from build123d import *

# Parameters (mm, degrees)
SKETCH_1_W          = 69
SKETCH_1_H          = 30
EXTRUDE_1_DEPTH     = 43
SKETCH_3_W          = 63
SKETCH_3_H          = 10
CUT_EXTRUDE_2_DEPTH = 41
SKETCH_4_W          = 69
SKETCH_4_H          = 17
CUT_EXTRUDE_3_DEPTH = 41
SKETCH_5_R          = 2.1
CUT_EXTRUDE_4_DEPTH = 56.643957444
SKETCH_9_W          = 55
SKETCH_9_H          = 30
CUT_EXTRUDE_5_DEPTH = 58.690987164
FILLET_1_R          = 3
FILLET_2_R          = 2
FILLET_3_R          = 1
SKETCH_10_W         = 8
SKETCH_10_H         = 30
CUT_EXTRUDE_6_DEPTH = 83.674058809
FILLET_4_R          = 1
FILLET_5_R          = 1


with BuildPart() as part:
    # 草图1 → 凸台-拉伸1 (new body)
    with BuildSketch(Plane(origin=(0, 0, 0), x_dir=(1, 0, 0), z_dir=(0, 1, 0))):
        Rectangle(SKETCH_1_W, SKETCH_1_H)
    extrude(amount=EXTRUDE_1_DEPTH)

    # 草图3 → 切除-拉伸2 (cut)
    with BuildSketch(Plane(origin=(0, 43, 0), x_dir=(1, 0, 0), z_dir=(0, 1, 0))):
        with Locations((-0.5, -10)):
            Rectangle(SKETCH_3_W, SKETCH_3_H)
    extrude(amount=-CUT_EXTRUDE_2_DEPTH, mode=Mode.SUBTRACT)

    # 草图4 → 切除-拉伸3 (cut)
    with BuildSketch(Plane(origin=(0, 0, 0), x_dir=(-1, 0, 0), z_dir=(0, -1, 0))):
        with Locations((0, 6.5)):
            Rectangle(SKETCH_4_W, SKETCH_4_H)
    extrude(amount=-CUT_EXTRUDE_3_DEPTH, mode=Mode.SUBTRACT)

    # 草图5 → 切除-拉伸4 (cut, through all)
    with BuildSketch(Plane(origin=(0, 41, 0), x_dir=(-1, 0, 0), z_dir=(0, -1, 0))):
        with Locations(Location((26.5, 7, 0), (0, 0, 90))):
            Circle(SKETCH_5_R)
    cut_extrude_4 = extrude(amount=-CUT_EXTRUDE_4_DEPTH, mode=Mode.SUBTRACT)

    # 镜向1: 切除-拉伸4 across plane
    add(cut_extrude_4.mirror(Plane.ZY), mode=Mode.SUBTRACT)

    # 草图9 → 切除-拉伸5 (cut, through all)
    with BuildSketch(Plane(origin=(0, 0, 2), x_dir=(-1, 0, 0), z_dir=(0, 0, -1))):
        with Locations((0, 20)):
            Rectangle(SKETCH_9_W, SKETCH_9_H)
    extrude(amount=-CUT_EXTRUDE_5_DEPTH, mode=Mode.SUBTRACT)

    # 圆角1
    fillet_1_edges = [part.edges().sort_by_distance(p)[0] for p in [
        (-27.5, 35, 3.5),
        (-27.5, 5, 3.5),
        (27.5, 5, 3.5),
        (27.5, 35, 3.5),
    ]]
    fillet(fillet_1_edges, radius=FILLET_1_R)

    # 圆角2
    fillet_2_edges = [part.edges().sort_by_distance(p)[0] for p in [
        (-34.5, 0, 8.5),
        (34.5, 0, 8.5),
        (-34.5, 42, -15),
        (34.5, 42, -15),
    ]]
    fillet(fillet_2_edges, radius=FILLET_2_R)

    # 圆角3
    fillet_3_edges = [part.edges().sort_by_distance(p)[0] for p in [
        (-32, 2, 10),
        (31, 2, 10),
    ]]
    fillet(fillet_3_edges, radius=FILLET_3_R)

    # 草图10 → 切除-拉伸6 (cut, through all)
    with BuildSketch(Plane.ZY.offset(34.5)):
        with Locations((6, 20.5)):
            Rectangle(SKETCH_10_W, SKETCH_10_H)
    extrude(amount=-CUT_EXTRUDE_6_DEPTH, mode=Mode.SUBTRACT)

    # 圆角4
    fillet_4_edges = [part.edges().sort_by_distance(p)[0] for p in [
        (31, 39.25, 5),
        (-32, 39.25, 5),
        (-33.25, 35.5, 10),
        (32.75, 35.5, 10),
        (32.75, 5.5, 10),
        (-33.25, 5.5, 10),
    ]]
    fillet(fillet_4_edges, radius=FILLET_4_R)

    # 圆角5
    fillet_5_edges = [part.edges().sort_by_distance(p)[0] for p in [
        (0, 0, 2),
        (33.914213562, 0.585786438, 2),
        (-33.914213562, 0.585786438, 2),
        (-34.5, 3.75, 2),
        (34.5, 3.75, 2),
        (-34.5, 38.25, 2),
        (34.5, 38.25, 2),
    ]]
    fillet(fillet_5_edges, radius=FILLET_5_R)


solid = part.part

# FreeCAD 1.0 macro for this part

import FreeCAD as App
import Part
import Sketcher

V = App.Vector


def edges_at(feature, points):
    """Names of the edges that pass closest to the given points."""
    edges = feature.Shape.Edges
    near = lambda p: min(range(len(edges)), key=lambda i: edges[i].distToShape(Part.Vertex(*p))[0])
    return sorted({f"Edge{near(p) + 1}" for p in points})

doc = App.newDocument("Part")
body = doc.addObject("PartDesign::Body", "Body")

sketch1 = doc.addObject("Sketcher::SketchObject", "Sketch")
body.addObject(sketch1)
sketch1.AttachmentSupport = (doc.XZ_Plane, [""])
sketch1.MapMode = "FlatFace"
sketch1.addGeometry([
    Part.LineSegment(V(-34, -15, 0), V(-34, 15, 0)),
    Part.LineSegment(V(-34, 15, 0), V(34, 15, 0)),
    Part.LineSegment(V(34, 15, 0), V(34, -15, 0)),
    Part.LineSegment(V(34, -15, 0), V(-34, -15, 0)),
], False)
sketch1.addConstraint([
    Sketcher.Constraint("Coincident", 0, 2, 1, 1),
    Sketcher.Constraint("Coincident", 1, 2, 2, 1),
    Sketcher.Constraint("Coincident", 2, 2, 3, 1),
    Sketcher.Constraint("Coincident", 3, 2, 0, 1),
    Sketcher.Constraint("Vertical", 0),
    Sketcher.Constraint("Horizontal", 1),
    Sketcher.Constraint("Vertical", 2),
    Sketcher.Constraint("Horizontal", 3),
    Sketcher.Constraint("Symmetric", 0, 2, 2, 2, -1, 1),
    Sketcher.Constraint("DistanceX", 1, 1, 1, 2, 69.0),
    Sketcher.Constraint("DistanceY", 0, 1, 0, 2, 30.0),
])
pad1 = doc.addObject("PartDesign::Pad", "Pad")
body.addObject(pad1)
pad1.Profile = sketch1
pad1.Length = 43
pad1.Reversed = True

sketch2 = doc.addObject("Sketcher::SketchObject", "Sketch001")
body.addObject(sketch2)
sketch2.AttachmentSupport = (doc.XZ_Plane, [""])
sketch2.MapMode = "FlatFace"
sketch2.AttachmentOffset = App.Placement(V(0, 0, -43), App.Rotation())
sketch2.addGeometry([
    Part.LineSegment(V(-32, 5, 0), V(-32, 15, 0)),
    Part.LineSegment(V(-32, 15, 0), V(31, 15, 0)),
    Part.LineSegment(V(31, 15, 0), V(31, 5, 0)),
    Part.LineSegment(V(31, 5, 0), V(-32, 5, 0)),
], False)
sketch2.addConstraint([
    Sketcher.Constraint("Coincident", 0, 2, 1, 1),
    Sketcher.Constraint("Coincident", 1, 2, 2, 1),
    Sketcher.Constraint("Coincident", 2, 2, 3, 1),
    Sketcher.Constraint("Coincident", 3, 2, 0, 1),
    Sketcher.Constraint("Vertical", 0),
    Sketcher.Constraint("Horizontal", 1),
    Sketcher.Constraint("Vertical", 2),
    Sketcher.Constraint("Horizontal", 3),
    Sketcher.Constraint("DistanceX", 1, 1, 1, 2, 63.0),
    Sketcher.Constraint("DistanceY", 0, 1, 0, 2, 10.0),
    Sketcher.Constraint("DistanceX", 0, 2, -1, 1, 32.0),
    Sketcher.Constraint("DistanceY", -1, 1, 0, 2, 15.0),
])
pocket1 = doc.addObject("PartDesign::Pocket", "Pocket")
body.addObject(pocket1)
pocket1.Profile = sketch2
pocket1.Length = 41
pocket1.Reversed = True

sketch3 = doc.addObject("Sketcher::SketchObject", "Sketch002")
body.addObject(sketch3)
sketch3.AttachmentSupport = (doc.XZ_Plane, [""])
sketch3.MapMode = "FlatFace"
sketch3.addGeometry([
    Part.LineSegment(V(34, -15, 0), V(34, 2, 0)),
    Part.LineSegment(V(34, 2, 0), V(-34, 2, 0)),
    Part.LineSegment(V(-34, 2, 0), V(-34, -15, 0)),
    Part.LineSegment(V(-34, -15, 0), V(34, -15, 0)),
], False)
sketch3.addConstraint([
    Sketcher.Constraint("Coincident", 0, 2, 1, 1),
    Sketcher.Constraint("Coincident", 1, 2, 2, 1),
    Sketcher.Constraint("Coincident", 2, 2, 3, 1),
    Sketcher.Constraint("Coincident", 3, 2, 0, 1),
    Sketcher.Constraint("Vertical", 0),
    Sketcher.Constraint("Horizontal", 1),
    Sketcher.Constraint("Vertical", 2),
    Sketcher.Constraint("Horizontal", 3),
    Sketcher.Constraint("DistanceX", 1, 2, 1, 1, 69.0),
    Sketcher.Constraint("DistanceY", 0, 1, 0, 2, 17.0),
    Sketcher.Constraint("DistanceY", -1, 1, 0, 2, 2.0),
    Sketcher.Constraint("DistanceX", -1, 1, 0, 2, 34.5),
])
pocket2 = doc.addObject("PartDesign::Pocket", "Pocket001")
body.addObject(pocket2)
pocket2.Profile = sketch3
pocket2.Length = 41

sketch4 = doc.addObject("Sketcher::SketchObject", "Sketch003")
body.addObject(sketch4)
sketch4.AttachmentSupport = (doc.XZ_Plane, [""])
sketch4.MapMode = "FlatFace"
sketch4.AttachmentOffset = App.Placement(V(0, 0, -41), App.Rotation())
sketch4.addGeometry(Part.Circle(V(-26.5, -7, 0), V(0, 0, 1), 2.1), False)
sketch4.addConstraint([
    Sketcher.Constraint("Diameter", 0, 4.2),
    Sketcher.Constraint("DistanceY", 0, 3, -1, 1, 7.0),
    Sketcher.Constraint("DistanceX", 0, 3, -1, 1, 26.5),
])
pocket3 = doc.addObject("PartDesign::Pocket", "Pocket002")
body.addObject(pocket3)
pocket3.Profile = sketch4
pocket3.Type = "ThroughAll"
doc.recompute()

mirrored = doc.addObject("PartDesign::Mirrored", "Mirrored")
body.addObject(mirrored)
mirrored.Originals = [pocket3]
mirrored.MirrorPlane = (doc.YZ_Plane, [""])
body.Tip = mirrored

sketch5 = doc.addObject("Sketcher::SketchObject", "Sketch004")
body.addObject(sketch5)
sketch5.AttachmentSupport = (doc.XY_Plane, [""])
sketch5.MapMode = "FlatFace"
sketch5.AttachmentOffset = App.Placement(V(0, 0, 2), App.Rotation())
sketch5.addGeometry([
    Part.LineSegment(V(28, 35, 0), V(28, 5, 0)),
    Part.LineSegment(V(28, 5, 0), V(-28, 5, 0)),
    Part.LineSegment(V(-28, 5, 0), V(-28, 35, 0)),
    Part.LineSegment(V(-28, 35, 0), V(28, 35, 0)),
], False)
sketch5.addConstraint([
    Sketcher.Constraint("Coincident", 0, 2, 1, 1),
    Sketcher.Constraint("Coincident", 1, 2, 2, 1),
    Sketcher.Constraint("Coincident", 2, 2, 3, 1),
    Sketcher.Constraint("Coincident", 3, 2, 0, 1),
    Sketcher.Constraint("Vertical", 0),
    Sketcher.Constraint("Horizontal", 1),
    Sketcher.Constraint("Vertical", 2),
    Sketcher.Constraint("Horizontal", 3),
    Sketcher.Constraint("DistanceX", 1, 2, 1, 1, 55.0),
    Sketcher.Constraint("DistanceY", 0, 2, 0, 1, 30.0),
    Sketcher.Constraint("DistanceY", -1, 1, 0, 2, 5.0),
    Sketcher.Constraint("DistanceX", -1, 1, 0, 2, 27.5),
])
pocket4 = doc.addObject("PartDesign::Pocket", "Pocket003")
body.addObject(pocket4)
pocket4.Profile = sketch5
pocket4.Type = "ThroughAll"
pocket4.Reversed = True
doc.recompute()

fillet = doc.addObject("PartDesign::Fillet", "Fillet")
body.addObject(fillet)
fillet.Base = (pocket4, edges_at(pocket4, [
    (-27.5, 35, 3.5),
    (-27.5, 5, 3.5),
    (27.5, 5, 3.5),
    (27.5, 35, 3.5),
]))
fillet.Radius = 3
doc.recompute()

fillet2 = doc.addObject("PartDesign::Fillet", "Fillet001")
body.addObject(fillet2)
fillet2.Base = (fillet, edges_at(fillet, [
    (-34.5, 0, 8.5),
    (34.5, 0, 8.5),
    (-34.5, 42, -15),
    (34.5, 42, -15),
]))
fillet2.Radius = 2
doc.recompute()

fillet3 = doc.addObject("PartDesign::Fillet", "Fillet002")
body.addObject(fillet3)
fillet3.Base = (fillet2, edges_at(fillet2, [(-32, 2, 10), (31, 2, 10)]))
fillet3.Radius = 1

sketch6 = doc.addObject("Sketcher::SketchObject", "Sketch005")
body.addObject(sketch6)
sketch6.AttachmentSupport = (doc.YZ_Plane, [""])
sketch6.MapMode = "FlatFace"
sketch6.AttachmentOffset = App.Placement(V(0, 0, -34.5), App.Rotation())
sketch6.addGeometry([
    Part.LineSegment(V(36, 2, 0), V(6, 2, 0)),
    Part.LineSegment(V(6, 2, 0), V(6, 10, 0)),
    Part.LineSegment(V(6, 10, 0), V(36, 10, 0)),
    Part.LineSegment(V(36, 10, 0), V(36, 2, 0)),
], False)
sketch6.addConstraint([
    Sketcher.Constraint("Coincident", 0, 2, 1, 1),
    Sketcher.Constraint("Coincident", 1, 2, 2, 1),
    Sketcher.Constraint("Coincident", 2, 2, 3, 1),
    Sketcher.Constraint("Coincident", 3, 2, 0, 1),
    Sketcher.Constraint("Horizontal", 0),
    Sketcher.Constraint("Vertical", 1),
    Sketcher.Constraint("Horizontal", 2),
    Sketcher.Constraint("Vertical", 3),
    Sketcher.Constraint("DistanceX", 0, 2, 0, 1, 30.0),
    Sketcher.Constraint("DistanceY", 1, 1, 1, 2, 8.0),
    Sketcher.Constraint("DistanceY", -1, 1, 0, 2, 2.0),
    Sketcher.Constraint("DistanceX", -1, 1, 0, 2, 5.5),
])
pocket5 = doc.addObject("PartDesign::Pocket", "Pocket004")
body.addObject(pocket5)
pocket5.Profile = sketch6
pocket5.Type = "ThroughAll"
pocket5.Reversed = True
doc.recompute()

fillet4 = doc.addObject("PartDesign::Fillet", "Fillet003")
body.addObject(fillet4)
fillet4.Base = (pocket5, edges_at(pocket5, [
    (31, 39.25, 5),
    (-32, 39.25, 5),
    (-33.25, 35.5, 10),
    (32.75, 35.5, 10),
    (32.75, 5.5, 10),
    (-33.25, 5.5, 10),
]))
fillet4.Radius = 1
doc.recompute()

fillet5 = doc.addObject("PartDesign::Fillet", "Fillet004")
body.addObject(fillet5)
fillet5.Base = (fillet4, edges_at(fillet4, [
    (0, 0, 2),
    (33.914, 0.586, 2),
    (-33.914, 0.586, 2),
    (-34.5, 3.75, 2),
    (34.5, 3.75, 2),
    (-34.5, 38.25, 2),
    (34.5, 38.25, 2),
]))
fillet5.Radius = 1

doc.recompute()
